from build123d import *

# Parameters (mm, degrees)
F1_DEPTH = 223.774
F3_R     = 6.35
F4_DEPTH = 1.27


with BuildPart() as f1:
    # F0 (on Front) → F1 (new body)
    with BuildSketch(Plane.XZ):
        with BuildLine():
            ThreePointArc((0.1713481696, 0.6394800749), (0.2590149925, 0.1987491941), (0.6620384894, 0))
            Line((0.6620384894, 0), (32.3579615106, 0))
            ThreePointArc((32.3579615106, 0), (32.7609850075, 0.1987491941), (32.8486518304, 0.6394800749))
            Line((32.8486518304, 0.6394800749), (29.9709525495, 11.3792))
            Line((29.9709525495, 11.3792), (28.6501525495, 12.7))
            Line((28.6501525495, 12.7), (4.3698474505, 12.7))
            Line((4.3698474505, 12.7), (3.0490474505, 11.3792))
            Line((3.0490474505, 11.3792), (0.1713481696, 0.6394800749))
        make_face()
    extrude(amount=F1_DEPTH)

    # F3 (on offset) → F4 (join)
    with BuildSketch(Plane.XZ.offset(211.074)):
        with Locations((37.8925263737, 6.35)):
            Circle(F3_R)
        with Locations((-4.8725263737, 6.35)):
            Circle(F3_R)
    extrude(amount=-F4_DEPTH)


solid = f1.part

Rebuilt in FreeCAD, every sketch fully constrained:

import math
import FreeCAD as App
import Part
import Sketcher
Q = App.Units.Quantity

doc = App.newDocument("Part")
params = doc.addObject("Spreadsheet::Sheet", "Params")
for row, (alias, value) in enumerate([
    ("sketch1_radius", "0.02 in"),
    ("pad1_length", "8.81 in"),
    ("sketch2_diameter", "0.5 in"),
    ("pad2_length", "0.05 in"),
], start=1):
    params.set(f"A{row}", alias)
    params.set(f"B{row}", "=" + value)
    params.setAlias(f"B{row}", alias)

body = doc.addObject("PartDesign::Body", "Body")
body.AllowCompound = True

sketch1 = doc.addObject("Sketcher::SketchObject", "Sketch")
body.addObject(sketch1)
sketch1.AttachmentSupport = (doc.XZ_Plane, [""])
sketch1.MapMode = "FlatFace"
sketch1.addGeometry(Part.ArcOfCircle(Part.Circle(App.Vector(0.662038, 0.508, 0), App.Vector(0, 0, 1), 0.508), math.radians(165), math.radians(270)), False)
sketch1.addGeometry(Part.LineSegment(App.Vector(0.662038, 0, 0), App.Vector(32.357962, 0, 0)), False)
sketch1.addGeometry(Part.ArcOfCircle(Part.Circle(App.Vector(32.357962, 0.508, 0), App.Vector(0, 0, 1), 0.508), math.radians(-90), math.radians(15)), False)
sketch1.addGeometry(Part.LineSegment(App.Vector(32.848652, 0.63948, 0), App.Vector(29.970953, 11.3792, 0)), False)
sketch1.addGeometry(Part.LineSegment(App.Vector(29.970953, 11.3792, 0), App.Vector(28.650153, 12.7, 0)), False)
sketch1.addGeometry(Part.LineSegment(App.Vector(28.650153, 12.7, 0), App.Vector(4.369847, 12.7, 0)), False)
sketch1.addGeometry(Part.LineSegment(App.Vector(4.369847, 12.7, 0), App.Vector(3.049047, 11.3792, 0)), False)
sketch1.addGeometry(Part.LineSegment(App.Vector(3.049047, 11.3792, 0), App.Vector(0.171348, 0.63948, 0)), False)
sketch1.addConstraint(Sketcher.Constraint("Tangent", 0, 2, 1, 1))
sketch1.addConstraint(Sketcher.Constraint("Tangent", 1, 2, 2, 1))
sketch1.addConstraint(Sketcher.Constraint("Tangent", 2, 2, 3, 1))
sketch1.addConstraint(Sketcher.Constraint("Coincident", 3, 2, 4, 1))
sketch1.addConstraint(Sketcher.Constraint("Coincident", 4, 2, 5, 1))
sketch1.addConstraint(Sketcher.Constraint("Coincident", 5, 2, 6, 1))
sketch1.addConstraint(Sketcher.Constraint("Coincident", 6, 2, 7, 1))
sketch1.addConstraint(Sketcher.Constraint("Tangent", 7, 2, 0, 1))
sketch1.addConstraint(Sketcher.Constraint("Horizontal", 1))
sketch1.addConstraint(Sketcher.Constraint("Horizontal", 5))
sketch1.addConstraint(Sketcher.Constraint("Equal", 0, 2))
sketch1.addConstraint(Sketcher.Constraint("PointOnObject", 0, 2, -1))
sketch1.addConstraint(Sketcher.Constraint("Perpendicular", 4, 6))
sketch1.addConstraint(Sketcher.Constraint("Horizontal", 3, 2, 6, 2))
sketch1.addConstraint(Sketcher.Constraint("Horizontal", 2, 2, 7, 2))
sketch1.addConstraint(Sketcher.Constraint("Equal", 4, 6))
sketch1.addConstraint(Sketcher.Constraint("Radius", 0, Q("0.02 in")))
sketch1.addConstraint(Sketcher.Constraint("Angle", 3, Q("105 deg")))
sketch1.addConstraint(Sketcher.Constraint("DistanceY", -1, 1, 4, 2, Q("0.5 in")))
sketch1.addConstraint(Sketcher.Constraint("DistanceY", -1, 1, 3, 2, Q("0.448 in")))
sketch1.addConstraint(Sketcher.Constraint("DistanceX", 1, 1, 1, 2, 31.695923))
sketch1.addConstraint(Sketcher.Constraint("DistanceX", -1, 1, 0, 3, 0.662038))
sketch1.setExpression("Constraints[16]", "Params.sketch1_radius")
pad1 = doc.addObject("PartDesign::Pad", "Pad")
body.addObject(pad1)
pad1.Profile = sketch1
pad1.setExpression("Length", "Params.pad1_length")

sketch2 = doc.addObject("Sketcher::SketchObject", "Sketch001")
body.addObject(sketch2)
sketch2.AttachmentSupport = (doc.XZ_Plane, [""])
sketch2.MapMode = "FlatFace"
sketch2.AttachmentOffset = App.Placement(App.Vector(0, 0, 8.31 * 25.4), App.Rotation())
sketch2.addGeometry(Part.Circle(App.Vector(37.892526, 6.35, 0), App.Vector(0, 0, 1), 6.35), False)
sketch2.addGeometry(Part.Circle(App.Vector(-4.872526, 6.35, 0), App.Vector(0, 0, 1), 6.35), False)
sketch2.addConstraint(Sketcher.Constraint("Equal", 0, 1))
sketch2.addConstraint(Sketcher.Constraint("Horizontal", 0, 3, 1, 3))
sketch2.addConstraint(Sketcher.Constraint("Diameter", 0, Q("0.5 in")))
sketch2.addConstraint(Sketcher.Constraint("DistanceY", -1, 1, 0, 3, Q("0.25 in")))
sketch2.addConstraint(Sketcher.Constraint("DistanceX", -1, 1, 0, 3, 37.892526))
sketch2.addConstraint(Sketcher.Constraint("DistanceX", 1, 3, -1, 1, 4.872526))
sketch2.setExpression("Constraints[2]", "Params.sketch2_diameter")
pad2 = doc.addObject("PartDesign::Pad", "Pad001")
body.addObject(pad2)
pad2.Profile = sketch2
pad2.setExpression("Length", "Params.pad2_length")
pad2.Reversed = True

doc.recompute()
